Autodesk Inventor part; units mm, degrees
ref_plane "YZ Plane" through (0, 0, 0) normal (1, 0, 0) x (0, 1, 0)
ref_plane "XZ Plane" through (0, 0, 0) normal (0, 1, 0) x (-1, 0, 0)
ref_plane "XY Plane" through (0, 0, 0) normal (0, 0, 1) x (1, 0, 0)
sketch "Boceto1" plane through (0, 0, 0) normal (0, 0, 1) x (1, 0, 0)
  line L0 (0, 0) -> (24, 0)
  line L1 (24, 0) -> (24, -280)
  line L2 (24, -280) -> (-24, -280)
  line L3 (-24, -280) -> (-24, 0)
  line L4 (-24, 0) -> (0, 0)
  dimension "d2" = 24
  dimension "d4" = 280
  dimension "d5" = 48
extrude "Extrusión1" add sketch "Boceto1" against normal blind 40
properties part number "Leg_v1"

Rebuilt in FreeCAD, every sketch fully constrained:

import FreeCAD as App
import Part
import Sketcher


def add_polygon(sketch, points):
    """Adds a closed chain of lines whose ends are joined by coincident constraints."""
    first, n = sketch.GeometryCount, len(points)
    for a, b in zip(points, points[1:] + points[:1]):
        sketch.addGeometry(Part.LineSegment(App.Vector(*a, 0), App.Vector(*b, 0)), False)
    for i in range(n):
        sketch.addConstraint(Sketcher.Constraint("Coincident", first + i, 2, first + (i + 1) % n, 1))

doc = App.newDocument("Part")
body = doc.addObject("PartDesign::Body", "Body")

sketch1 = body.newObject("Sketcher::SketchObject", "Sketch")
sketch1.AttachmentSupport = (doc.getObject("XY_Plane"), [""])
sketch1.MapMode = "FlatFace"
add_polygon(sketch1, [(24, 0), (-24, 0), (-24, -280), (24, -280)])
sketch1.addConstraint(Sketcher.Constraint("Horizontal", 0))
sketch1.addConstraint(Sketcher.Constraint("Vertical", 1))
sketch1.addConstraint(Sketcher.Constraint("Horizontal", 2))
sketch1.addConstraint(Sketcher.Constraint("Vertical", 3))
sketch1.addConstraint(Sketcher.Constraint("Symmetric", 0, 2, 3, 2, -1, 1))
sketch1.addConstraint(Sketcher.Constraint("DistanceX", 0, 2, 0, 1, 48.0))
sketch1.addConstraint(Sketcher.Constraint("DistanceY", 1, 2, 1, 1, 280.0))
pad1 = body.newObject("PartDesign::Pad", "Pad")
pad1.Profile = sketch1
pad1.Length = 40
pad1.Reversed = True

doc.recompute()
